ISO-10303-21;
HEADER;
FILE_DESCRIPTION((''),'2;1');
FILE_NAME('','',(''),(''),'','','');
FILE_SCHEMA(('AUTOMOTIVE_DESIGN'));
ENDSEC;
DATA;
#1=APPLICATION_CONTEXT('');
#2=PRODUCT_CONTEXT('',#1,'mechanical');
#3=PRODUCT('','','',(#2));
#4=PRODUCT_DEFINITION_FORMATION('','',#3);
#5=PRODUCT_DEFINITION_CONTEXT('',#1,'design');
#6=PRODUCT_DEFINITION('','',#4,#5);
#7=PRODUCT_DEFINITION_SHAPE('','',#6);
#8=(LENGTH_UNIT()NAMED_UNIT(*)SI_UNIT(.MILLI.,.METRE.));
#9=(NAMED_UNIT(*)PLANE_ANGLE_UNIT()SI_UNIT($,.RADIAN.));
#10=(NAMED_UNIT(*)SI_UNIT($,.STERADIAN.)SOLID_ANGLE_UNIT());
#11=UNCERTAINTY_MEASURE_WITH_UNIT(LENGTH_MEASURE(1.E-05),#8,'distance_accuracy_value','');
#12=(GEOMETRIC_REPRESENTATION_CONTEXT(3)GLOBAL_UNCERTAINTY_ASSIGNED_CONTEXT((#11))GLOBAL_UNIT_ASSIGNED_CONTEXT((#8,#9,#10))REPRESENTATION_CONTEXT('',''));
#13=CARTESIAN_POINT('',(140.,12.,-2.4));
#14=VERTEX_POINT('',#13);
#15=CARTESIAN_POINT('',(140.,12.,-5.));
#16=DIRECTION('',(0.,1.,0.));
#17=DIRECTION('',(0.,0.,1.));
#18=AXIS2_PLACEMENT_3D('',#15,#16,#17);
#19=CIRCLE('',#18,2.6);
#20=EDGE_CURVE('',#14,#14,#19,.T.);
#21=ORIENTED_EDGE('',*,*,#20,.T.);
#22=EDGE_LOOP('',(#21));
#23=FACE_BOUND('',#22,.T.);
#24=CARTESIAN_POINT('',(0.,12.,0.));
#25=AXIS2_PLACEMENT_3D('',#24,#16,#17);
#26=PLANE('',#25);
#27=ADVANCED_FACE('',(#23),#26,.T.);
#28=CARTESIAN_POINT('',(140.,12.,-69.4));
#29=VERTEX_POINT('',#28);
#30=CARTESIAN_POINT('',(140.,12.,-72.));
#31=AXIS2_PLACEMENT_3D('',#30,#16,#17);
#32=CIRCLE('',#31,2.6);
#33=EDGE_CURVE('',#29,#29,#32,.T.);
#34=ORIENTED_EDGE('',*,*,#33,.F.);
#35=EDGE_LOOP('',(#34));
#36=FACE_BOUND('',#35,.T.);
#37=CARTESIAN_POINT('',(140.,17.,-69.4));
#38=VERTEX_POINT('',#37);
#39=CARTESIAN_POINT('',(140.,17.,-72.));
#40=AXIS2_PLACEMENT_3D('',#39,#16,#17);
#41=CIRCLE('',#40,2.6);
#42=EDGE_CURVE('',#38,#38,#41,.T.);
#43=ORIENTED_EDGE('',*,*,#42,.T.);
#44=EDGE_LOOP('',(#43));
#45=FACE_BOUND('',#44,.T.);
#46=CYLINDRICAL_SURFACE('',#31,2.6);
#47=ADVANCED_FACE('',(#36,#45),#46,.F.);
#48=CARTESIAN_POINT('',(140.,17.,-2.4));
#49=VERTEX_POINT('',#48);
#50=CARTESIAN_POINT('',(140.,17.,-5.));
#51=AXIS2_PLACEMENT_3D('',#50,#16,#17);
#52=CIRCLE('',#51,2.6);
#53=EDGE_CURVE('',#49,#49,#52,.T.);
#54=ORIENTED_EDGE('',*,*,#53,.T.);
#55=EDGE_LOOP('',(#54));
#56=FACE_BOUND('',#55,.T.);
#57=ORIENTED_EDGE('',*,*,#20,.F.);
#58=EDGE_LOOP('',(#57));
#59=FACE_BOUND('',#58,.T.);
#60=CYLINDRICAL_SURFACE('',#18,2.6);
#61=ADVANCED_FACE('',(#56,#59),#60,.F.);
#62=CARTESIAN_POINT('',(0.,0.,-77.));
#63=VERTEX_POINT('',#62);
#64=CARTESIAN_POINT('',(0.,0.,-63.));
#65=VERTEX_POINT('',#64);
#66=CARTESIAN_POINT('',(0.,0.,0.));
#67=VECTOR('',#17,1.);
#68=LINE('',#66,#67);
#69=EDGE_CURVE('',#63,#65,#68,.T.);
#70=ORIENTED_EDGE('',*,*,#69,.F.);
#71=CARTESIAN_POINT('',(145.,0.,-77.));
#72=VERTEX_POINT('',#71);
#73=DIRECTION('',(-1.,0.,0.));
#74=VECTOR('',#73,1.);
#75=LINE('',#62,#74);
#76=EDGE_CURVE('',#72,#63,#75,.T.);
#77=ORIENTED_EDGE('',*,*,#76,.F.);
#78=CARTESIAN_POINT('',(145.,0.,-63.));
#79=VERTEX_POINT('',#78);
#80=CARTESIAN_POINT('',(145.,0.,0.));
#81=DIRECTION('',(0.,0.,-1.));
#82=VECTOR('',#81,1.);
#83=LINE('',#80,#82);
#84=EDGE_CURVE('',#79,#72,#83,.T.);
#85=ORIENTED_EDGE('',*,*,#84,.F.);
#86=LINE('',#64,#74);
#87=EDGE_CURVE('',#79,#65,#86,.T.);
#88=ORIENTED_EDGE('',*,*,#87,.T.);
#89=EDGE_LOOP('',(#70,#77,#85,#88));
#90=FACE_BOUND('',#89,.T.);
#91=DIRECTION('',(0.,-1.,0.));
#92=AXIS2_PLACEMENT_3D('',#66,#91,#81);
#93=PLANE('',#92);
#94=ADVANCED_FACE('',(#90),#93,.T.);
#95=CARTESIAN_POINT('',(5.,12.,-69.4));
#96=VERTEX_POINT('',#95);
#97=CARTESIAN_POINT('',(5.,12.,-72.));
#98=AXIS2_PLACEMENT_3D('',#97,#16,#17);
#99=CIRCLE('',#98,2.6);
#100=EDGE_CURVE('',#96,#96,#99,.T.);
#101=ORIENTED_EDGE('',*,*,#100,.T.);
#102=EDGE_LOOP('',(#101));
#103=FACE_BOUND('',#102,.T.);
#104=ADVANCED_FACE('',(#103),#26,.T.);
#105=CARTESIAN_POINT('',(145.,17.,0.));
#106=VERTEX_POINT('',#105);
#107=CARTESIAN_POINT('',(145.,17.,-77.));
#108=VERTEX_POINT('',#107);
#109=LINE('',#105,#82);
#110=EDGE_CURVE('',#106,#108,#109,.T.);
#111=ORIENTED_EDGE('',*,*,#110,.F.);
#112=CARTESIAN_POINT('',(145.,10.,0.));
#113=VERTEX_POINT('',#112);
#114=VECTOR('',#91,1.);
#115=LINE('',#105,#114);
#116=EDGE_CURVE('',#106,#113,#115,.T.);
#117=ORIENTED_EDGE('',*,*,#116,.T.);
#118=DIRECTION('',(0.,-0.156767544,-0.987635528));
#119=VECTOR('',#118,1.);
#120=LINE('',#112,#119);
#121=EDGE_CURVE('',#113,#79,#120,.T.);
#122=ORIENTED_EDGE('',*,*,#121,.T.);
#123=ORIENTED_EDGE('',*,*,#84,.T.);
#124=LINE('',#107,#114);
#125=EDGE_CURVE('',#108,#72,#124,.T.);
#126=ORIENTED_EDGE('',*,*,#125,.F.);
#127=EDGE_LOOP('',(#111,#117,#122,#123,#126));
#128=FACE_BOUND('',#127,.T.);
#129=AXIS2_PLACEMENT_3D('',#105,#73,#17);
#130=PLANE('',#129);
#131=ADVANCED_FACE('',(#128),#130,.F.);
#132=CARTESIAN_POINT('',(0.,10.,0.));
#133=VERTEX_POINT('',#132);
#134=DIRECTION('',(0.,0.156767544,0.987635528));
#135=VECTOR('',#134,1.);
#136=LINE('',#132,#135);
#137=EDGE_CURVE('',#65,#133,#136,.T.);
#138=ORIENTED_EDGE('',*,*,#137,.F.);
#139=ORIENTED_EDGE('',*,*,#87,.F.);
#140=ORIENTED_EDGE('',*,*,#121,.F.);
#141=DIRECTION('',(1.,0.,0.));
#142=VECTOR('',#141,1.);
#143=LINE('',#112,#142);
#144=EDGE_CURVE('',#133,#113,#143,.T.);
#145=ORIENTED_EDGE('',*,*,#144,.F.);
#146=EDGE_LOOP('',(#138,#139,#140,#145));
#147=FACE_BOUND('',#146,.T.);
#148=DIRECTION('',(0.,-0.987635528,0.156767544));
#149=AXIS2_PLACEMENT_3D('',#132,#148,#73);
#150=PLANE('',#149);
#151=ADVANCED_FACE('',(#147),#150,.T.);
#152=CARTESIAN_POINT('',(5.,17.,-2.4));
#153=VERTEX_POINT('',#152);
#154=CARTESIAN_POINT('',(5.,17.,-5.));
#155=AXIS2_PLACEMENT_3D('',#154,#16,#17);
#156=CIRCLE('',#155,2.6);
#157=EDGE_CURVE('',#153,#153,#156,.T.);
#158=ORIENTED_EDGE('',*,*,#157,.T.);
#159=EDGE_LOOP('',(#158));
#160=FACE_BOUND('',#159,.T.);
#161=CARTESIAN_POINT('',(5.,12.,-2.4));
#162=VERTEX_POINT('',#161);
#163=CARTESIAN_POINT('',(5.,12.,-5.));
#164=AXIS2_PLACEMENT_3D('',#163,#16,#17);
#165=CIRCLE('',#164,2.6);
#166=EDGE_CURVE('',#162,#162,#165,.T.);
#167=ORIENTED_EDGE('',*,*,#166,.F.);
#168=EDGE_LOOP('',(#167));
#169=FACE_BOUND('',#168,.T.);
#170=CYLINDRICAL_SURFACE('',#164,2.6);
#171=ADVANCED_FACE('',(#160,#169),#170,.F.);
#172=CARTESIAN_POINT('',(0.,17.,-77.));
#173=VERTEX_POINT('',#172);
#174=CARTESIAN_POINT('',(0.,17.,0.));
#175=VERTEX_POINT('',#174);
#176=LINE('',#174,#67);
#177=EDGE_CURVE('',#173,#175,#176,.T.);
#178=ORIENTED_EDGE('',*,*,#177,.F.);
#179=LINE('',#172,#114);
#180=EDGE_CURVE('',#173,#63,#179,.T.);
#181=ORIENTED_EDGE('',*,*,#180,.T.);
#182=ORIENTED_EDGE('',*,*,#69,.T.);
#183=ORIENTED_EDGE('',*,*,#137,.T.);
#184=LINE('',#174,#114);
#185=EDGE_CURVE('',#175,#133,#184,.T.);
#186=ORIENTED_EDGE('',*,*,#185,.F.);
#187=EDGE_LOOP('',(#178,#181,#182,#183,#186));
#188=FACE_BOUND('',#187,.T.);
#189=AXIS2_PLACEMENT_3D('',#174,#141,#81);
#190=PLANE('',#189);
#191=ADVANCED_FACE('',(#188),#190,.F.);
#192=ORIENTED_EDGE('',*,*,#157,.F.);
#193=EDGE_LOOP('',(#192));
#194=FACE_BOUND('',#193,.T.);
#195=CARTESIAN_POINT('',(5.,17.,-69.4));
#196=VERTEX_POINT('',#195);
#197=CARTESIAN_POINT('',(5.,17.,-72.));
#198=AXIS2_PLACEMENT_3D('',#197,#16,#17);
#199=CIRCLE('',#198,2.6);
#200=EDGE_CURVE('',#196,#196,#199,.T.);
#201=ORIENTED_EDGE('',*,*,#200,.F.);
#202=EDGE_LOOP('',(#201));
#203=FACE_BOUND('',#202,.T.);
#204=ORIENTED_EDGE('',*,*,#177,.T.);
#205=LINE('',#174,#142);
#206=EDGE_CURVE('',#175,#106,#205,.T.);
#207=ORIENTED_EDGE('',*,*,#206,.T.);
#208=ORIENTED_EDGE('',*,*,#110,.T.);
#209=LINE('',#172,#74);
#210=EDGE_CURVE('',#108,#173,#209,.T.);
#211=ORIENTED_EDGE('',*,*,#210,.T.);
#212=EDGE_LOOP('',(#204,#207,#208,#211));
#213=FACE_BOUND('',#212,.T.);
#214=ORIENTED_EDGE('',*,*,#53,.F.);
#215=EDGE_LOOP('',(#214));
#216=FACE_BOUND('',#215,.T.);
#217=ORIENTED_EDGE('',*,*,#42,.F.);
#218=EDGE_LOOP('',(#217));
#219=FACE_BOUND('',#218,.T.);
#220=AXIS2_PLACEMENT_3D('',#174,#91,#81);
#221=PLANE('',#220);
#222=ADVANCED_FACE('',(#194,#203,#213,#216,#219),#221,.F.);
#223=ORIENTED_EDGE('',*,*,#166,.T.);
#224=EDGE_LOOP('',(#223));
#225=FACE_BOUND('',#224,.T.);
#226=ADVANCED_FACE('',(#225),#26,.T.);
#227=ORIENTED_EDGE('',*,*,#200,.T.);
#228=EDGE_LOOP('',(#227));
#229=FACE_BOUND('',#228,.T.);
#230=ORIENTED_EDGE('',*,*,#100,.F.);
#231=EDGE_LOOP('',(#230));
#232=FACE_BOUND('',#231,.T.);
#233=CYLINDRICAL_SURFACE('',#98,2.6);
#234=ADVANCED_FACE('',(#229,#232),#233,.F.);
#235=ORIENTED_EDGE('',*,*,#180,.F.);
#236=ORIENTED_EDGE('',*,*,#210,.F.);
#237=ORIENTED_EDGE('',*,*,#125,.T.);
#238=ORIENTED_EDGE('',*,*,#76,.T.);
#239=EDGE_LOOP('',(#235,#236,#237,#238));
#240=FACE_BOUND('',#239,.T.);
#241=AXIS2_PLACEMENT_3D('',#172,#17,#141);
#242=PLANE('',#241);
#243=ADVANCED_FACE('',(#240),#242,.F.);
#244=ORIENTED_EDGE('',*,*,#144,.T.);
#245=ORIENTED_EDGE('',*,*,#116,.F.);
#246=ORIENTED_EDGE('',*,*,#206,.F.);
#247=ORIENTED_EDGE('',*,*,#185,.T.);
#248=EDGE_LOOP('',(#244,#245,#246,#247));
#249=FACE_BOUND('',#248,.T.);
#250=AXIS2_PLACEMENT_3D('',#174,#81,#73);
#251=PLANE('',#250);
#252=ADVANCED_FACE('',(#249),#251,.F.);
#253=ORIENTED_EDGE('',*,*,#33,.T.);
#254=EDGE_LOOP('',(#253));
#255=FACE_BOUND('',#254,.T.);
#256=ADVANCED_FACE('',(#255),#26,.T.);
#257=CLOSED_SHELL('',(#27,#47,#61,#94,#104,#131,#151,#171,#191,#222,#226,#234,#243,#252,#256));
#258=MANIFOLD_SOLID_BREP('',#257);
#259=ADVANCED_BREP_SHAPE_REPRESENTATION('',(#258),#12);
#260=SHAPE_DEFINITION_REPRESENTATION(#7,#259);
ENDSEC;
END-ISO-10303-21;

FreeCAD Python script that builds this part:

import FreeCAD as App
import Part
import Sketcher

V = App.Vector


def edges_at(feature, points):
    """Names of the edges that pass closest to the given points."""
    edges = feature.Shape.Edges
    near = lambda p: min(range(len(edges)), key=lambda i: edges[i].distToShape(Part.Vertex(*p))[0])
    return sorted({f"Edge{near(p) + 1}" for p in points})

doc = App.newDocument("Part")
body = doc.addObject("PartDesign::Body", "Body")

# Sketch on XZ plane
sketch1 = body.newObject("Sketcher::SketchObject", "Sketch")
sketch1.AttachmentSupport = (doc.getObject("XZ_Plane"), [""])
sketch1.MapMode = "FlatFace"
sketch1.addGeometry([
    Part.LineSegment(V(0, -77, 0), V(0, 0, 0)),
    Part.LineSegment(V(0, 0, 0), V(145, 0, 0)),
    Part.LineSegment(V(145, 0, 0), V(145, -77, 0)),
    Part.LineSegment(V(145, -77, 0), V(0, -77, 0)),
], False)
sketch1.addConstraint([
    Sketcher.Constraint("Coincident", 0, 2, 1, 1),
    Sketcher.Constraint("Coincident", 1, 2, 2, 1),
    Sketcher.Constraint("Coincident", 2, 2, 3, 1),
    Sketcher.Constraint("Coincident", 3, 2, 0, 1),
    Sketcher.Constraint("Vertical", 0),
    Sketcher.Constraint("Horizontal", 1),
    Sketcher.Constraint("Vertical", 2),
    Sketcher.Constraint("Horizontal", 3),
    Sketcher.Constraint("Coincident", 0, 2, -1, 1),
    Sketcher.Constraint("DistanceX", 1, 1, 1, 2, 145.0),
    Sketcher.Constraint("DistanceY", 0, 1, 0, 2, 77.0),
])
pad1 = body.newObject("PartDesign::Pad", "Pad")
pad1.Profile = sketch1
pad1.Length = 17
pad1.Reversed = True
doc.recompute()

chamfer = body.newObject("PartDesign::Chamfer", "Chamfer")
chamfer.Base = (pad1, edges_at(pad1, [(72.5, 0, 0)]))
chamfer.ChamferType = "Two distances"
chamfer.Size = 63
chamfer.Size2 = 10
chamfer.FlipDirection = True

# Sketch on XZ plane
sketch2 = body.newObject("Sketcher::SketchObject", "Sketch001")
sketch2.AttachmentSupport = (doc.getObject("XZ_Plane"), [""])
sketch2.MapMode = "FlatFace"
sketch2.AttachmentOffset = App.Placement(V(0, 0, -17), App.Rotation())
sketch2.addGeometry([
    Part.Circle(V(5, -72, 0), V(0, 0, 1), 2.6),
    Part.Circle(V(5, -5, 0), V(0, 0, 1), 2.6),
    Part.Circle(V(140, -5, 0), V(0, 0, 1), 2.6),
    Part.Circle(V(140, -72, 0), V(0, 0, 1), 2.6),
], False)
sketch2.addConstraint([
    Sketcher.Constraint("Equal", 0, 1),
    Sketcher.Constraint("Equal", 1, 2),
    Sketcher.Constraint("Equal", 2, 3),
    Sketcher.Constraint("Horizontal", 1, 3, 2, 3),
    Sketcher.Constraint("Horizontal", 0, 3, 3, 3),
    Sketcher.Constraint("Vertical", 0, 3, 1, 3),
    Sketcher.Constraint("Vertical", 2, 3, 3, 3),
    Sketcher.Constraint("Diameter", 0, 5.2),
    Sketcher.Constraint("DistanceX", -1, 1, 0, 3, 5.0),
    Sketcher.Constraint("DistanceY", 0, 3, -1, 1, 72.0),
    Sketcher.Constraint("DistanceY", 1, 3, -1, 1, 5.0),
    Sketcher.Constraint("DistanceX", -1, 1, 2, 3, 140.0),
])
pocket1 = body.newObject("PartDesign::Pocket", "Pocket")
pocket1.Profile = sketch2
pocket1.Length = 5
pocket1.Reversed = True

doc.recompute()
